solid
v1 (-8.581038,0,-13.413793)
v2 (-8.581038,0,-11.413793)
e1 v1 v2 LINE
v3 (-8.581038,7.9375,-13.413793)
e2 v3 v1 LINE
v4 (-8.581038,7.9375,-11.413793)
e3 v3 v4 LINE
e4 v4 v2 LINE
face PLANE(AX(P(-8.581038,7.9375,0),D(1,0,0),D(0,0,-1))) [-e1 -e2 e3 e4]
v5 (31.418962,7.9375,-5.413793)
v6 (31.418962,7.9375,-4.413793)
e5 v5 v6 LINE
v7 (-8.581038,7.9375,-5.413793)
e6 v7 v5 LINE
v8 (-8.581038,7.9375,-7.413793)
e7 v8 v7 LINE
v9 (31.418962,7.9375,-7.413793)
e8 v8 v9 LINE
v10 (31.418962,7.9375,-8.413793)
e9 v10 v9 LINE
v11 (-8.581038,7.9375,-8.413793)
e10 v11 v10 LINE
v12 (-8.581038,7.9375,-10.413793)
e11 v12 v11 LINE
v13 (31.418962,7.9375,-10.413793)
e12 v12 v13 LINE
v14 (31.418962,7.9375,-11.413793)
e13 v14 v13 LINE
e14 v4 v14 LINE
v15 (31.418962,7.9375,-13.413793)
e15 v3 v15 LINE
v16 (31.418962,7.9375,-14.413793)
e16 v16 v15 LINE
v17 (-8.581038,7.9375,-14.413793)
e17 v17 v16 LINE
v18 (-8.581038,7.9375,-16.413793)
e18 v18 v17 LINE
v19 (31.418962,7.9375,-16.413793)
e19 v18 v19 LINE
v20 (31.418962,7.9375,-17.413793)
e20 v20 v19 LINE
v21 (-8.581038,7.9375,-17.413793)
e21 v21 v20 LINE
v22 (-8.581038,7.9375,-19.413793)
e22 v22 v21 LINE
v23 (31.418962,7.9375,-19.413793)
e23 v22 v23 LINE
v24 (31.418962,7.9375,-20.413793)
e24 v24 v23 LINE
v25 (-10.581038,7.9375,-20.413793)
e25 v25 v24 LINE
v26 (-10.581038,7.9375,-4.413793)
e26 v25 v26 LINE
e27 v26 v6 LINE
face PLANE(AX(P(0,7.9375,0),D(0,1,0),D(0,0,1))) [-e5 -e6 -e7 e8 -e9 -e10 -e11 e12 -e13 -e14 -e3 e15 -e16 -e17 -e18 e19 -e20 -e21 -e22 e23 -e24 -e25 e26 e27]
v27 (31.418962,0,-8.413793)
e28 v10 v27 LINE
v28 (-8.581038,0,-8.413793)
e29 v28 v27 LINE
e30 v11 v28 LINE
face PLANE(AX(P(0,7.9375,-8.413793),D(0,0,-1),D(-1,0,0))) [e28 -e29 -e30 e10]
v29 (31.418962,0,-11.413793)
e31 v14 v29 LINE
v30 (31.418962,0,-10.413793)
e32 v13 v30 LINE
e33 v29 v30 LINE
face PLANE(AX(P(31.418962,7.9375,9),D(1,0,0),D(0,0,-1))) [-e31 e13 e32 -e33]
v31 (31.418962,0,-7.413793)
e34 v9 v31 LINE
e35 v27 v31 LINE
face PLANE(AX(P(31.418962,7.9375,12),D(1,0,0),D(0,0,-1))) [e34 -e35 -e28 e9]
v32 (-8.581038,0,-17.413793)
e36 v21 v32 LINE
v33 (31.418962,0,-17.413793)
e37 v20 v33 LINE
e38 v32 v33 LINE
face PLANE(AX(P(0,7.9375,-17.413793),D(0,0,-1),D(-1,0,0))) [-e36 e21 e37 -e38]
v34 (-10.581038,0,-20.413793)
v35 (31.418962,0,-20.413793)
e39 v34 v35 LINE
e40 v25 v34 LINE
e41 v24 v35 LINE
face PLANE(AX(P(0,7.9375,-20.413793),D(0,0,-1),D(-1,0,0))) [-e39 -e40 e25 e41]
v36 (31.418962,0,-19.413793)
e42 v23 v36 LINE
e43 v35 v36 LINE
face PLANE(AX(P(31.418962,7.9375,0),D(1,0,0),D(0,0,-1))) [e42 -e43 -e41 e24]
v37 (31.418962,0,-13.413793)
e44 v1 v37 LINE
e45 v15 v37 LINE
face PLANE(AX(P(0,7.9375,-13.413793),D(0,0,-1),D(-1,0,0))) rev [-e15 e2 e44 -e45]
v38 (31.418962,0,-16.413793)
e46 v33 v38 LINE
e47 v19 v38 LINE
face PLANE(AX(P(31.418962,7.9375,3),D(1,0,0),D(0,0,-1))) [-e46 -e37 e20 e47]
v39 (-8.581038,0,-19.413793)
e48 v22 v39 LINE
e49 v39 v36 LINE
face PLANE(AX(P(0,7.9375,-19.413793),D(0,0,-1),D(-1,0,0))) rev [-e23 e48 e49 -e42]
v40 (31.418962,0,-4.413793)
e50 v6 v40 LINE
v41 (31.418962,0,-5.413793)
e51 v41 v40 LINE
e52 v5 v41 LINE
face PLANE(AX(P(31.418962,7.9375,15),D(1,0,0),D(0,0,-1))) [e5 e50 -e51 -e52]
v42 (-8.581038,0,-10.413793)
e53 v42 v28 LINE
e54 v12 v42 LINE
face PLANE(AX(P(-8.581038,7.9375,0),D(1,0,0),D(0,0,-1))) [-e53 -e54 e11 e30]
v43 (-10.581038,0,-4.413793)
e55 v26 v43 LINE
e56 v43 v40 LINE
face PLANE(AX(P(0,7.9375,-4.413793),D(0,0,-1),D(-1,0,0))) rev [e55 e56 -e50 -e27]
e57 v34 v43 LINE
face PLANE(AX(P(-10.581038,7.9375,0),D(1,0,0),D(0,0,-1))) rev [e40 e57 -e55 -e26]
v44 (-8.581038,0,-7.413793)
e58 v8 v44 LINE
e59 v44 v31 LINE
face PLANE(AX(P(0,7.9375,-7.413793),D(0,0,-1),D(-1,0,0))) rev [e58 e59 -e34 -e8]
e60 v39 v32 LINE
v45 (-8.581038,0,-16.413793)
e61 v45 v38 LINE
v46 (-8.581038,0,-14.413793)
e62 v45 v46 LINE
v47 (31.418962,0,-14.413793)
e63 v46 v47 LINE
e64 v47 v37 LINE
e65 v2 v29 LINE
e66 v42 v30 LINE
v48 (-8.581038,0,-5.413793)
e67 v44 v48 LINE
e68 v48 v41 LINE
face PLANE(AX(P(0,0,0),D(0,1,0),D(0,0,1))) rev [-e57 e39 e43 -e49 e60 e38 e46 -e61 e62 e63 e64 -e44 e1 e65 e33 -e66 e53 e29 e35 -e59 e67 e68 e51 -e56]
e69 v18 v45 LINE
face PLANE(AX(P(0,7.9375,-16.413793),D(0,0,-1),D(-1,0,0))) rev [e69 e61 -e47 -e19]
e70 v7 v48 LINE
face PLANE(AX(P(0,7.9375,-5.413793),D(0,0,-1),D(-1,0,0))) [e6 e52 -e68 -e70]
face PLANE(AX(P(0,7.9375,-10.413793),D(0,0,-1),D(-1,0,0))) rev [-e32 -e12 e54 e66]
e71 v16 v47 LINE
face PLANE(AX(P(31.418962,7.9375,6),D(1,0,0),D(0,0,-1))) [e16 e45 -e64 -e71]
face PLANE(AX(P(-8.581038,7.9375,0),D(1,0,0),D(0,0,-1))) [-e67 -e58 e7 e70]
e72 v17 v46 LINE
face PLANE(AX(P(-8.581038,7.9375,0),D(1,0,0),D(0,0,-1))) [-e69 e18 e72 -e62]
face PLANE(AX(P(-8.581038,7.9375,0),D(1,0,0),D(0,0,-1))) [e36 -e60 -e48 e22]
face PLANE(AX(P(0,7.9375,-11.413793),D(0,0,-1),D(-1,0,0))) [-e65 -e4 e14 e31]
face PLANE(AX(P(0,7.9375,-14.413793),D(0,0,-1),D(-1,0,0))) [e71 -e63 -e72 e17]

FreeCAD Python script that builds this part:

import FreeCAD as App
import Part
import Sketcher
Q = App.Units.Quantity


def add_polygon(sketch, points):
    """Adds a closed chain of lines whose ends are joined by coincident constraints."""
    first, n = sketch.GeometryCount, len(points)
    for a, b in zip(points, points[1:] + points[:1]):
        sketch.addGeometry(Part.LineSegment(App.Vector(*a, 0), App.Vector(*b, 0)), False)
    for i in range(n):
        sketch.addConstraint(Sketcher.Constraint("Coincident", first + i, 2, first + (i + 1) % n, 1))

doc = App.newDocument("Part")
body = doc.addObject("PartDesign::Body", "Body")

# Sketch on XZ plane
sketch1 = body.newObject("Sketcher::SketchObject", "Sketch")
sketch1.AttachmentSupport = (doc.getObject("XZ_Plane"), [""])
sketch1.MapMode = "FlatFace"
add_polygon(sketch1, [(-10.6, -20.4), (-10.6, -4.4), (-8.6, -4.4), (-8.6, -20.4)])  # lines 0-3
sketch1.addConstraint([
    Sketcher.Constraint("Vertical", 0),
    Sketcher.Constraint("Horizontal", 1),
    Sketcher.Constraint("Vertical", 2),
    Sketcher.Constraint("Horizontal", 3),
    Sketcher.Constraint("DistanceX", 1, 1, 1, 2, Q("2 mm")),
    Sketcher.Constraint("DistanceY", 0, 1, 0, 2, Q("16 mm")),
    Sketcher.Constraint("DistanceX", 0, 2, -1, 1, Q("10.581038 mm")),
    Sketcher.Constraint("DistanceY", 0, 2, -1, 1, Q("4.413793 mm")),
])
pad1 = body.newObject("PartDesign::Pad", "Pad")
pad1.Profile = sketch1
pad1.Length = 7.9375
pad1.Reversed = True

# Sketch on XZ plane
sketch2 = body.newObject("Sketcher::SketchObject", "Sketch001")
sketch2.AttachmentSupport = (doc.getObject("XZ_Plane"), [""])
sketch2.MapMode = "FlatFace"
add_polygon(sketch2, [(-8.6, -20.4), (-8.6, -19.4), (31.4, -19.4), (31.4, -20.4)])  # lines 0-3
sketch2.addConstraint([
    Sketcher.Constraint("Vertical", 0),
    Sketcher.Constraint("Horizontal", 1),
    Sketcher.Constraint("Vertical", 2),
    Sketcher.Constraint("Horizontal", 3),
    Sketcher.Constraint("DistanceX", 1, 1, 1, 2, Q("40 mm")),
    Sketcher.Constraint("DistanceY", 0, 1, 0, 2, Q("1 mm")),
    Sketcher.Constraint("DistanceX", 0, 2, -1, 1, Q("8.581038 mm")),
    Sketcher.Constraint("DistanceY", 0, 2, -1, 1, Q("19.413793 mm")),
])
pad2 = body.newObject("PartDesign::Pad", "Pad001")
pad2.Profile = sketch2
pad2.Length = 7.9375
pad2.Reversed = True
doc.recompute()

linearpattern = body.newObject("PartDesign::LinearPattern", "LinearPattern")
linearpattern.Originals = [pad2]
linearpattern.Direction = (doc.getObject("Z_Axis"), [""])
linearpattern.Mode = "offset"
linearpattern.Offset = 3
linearpattern.Occurrences = 6
body.Tip = linearpattern

doc.recompute()
